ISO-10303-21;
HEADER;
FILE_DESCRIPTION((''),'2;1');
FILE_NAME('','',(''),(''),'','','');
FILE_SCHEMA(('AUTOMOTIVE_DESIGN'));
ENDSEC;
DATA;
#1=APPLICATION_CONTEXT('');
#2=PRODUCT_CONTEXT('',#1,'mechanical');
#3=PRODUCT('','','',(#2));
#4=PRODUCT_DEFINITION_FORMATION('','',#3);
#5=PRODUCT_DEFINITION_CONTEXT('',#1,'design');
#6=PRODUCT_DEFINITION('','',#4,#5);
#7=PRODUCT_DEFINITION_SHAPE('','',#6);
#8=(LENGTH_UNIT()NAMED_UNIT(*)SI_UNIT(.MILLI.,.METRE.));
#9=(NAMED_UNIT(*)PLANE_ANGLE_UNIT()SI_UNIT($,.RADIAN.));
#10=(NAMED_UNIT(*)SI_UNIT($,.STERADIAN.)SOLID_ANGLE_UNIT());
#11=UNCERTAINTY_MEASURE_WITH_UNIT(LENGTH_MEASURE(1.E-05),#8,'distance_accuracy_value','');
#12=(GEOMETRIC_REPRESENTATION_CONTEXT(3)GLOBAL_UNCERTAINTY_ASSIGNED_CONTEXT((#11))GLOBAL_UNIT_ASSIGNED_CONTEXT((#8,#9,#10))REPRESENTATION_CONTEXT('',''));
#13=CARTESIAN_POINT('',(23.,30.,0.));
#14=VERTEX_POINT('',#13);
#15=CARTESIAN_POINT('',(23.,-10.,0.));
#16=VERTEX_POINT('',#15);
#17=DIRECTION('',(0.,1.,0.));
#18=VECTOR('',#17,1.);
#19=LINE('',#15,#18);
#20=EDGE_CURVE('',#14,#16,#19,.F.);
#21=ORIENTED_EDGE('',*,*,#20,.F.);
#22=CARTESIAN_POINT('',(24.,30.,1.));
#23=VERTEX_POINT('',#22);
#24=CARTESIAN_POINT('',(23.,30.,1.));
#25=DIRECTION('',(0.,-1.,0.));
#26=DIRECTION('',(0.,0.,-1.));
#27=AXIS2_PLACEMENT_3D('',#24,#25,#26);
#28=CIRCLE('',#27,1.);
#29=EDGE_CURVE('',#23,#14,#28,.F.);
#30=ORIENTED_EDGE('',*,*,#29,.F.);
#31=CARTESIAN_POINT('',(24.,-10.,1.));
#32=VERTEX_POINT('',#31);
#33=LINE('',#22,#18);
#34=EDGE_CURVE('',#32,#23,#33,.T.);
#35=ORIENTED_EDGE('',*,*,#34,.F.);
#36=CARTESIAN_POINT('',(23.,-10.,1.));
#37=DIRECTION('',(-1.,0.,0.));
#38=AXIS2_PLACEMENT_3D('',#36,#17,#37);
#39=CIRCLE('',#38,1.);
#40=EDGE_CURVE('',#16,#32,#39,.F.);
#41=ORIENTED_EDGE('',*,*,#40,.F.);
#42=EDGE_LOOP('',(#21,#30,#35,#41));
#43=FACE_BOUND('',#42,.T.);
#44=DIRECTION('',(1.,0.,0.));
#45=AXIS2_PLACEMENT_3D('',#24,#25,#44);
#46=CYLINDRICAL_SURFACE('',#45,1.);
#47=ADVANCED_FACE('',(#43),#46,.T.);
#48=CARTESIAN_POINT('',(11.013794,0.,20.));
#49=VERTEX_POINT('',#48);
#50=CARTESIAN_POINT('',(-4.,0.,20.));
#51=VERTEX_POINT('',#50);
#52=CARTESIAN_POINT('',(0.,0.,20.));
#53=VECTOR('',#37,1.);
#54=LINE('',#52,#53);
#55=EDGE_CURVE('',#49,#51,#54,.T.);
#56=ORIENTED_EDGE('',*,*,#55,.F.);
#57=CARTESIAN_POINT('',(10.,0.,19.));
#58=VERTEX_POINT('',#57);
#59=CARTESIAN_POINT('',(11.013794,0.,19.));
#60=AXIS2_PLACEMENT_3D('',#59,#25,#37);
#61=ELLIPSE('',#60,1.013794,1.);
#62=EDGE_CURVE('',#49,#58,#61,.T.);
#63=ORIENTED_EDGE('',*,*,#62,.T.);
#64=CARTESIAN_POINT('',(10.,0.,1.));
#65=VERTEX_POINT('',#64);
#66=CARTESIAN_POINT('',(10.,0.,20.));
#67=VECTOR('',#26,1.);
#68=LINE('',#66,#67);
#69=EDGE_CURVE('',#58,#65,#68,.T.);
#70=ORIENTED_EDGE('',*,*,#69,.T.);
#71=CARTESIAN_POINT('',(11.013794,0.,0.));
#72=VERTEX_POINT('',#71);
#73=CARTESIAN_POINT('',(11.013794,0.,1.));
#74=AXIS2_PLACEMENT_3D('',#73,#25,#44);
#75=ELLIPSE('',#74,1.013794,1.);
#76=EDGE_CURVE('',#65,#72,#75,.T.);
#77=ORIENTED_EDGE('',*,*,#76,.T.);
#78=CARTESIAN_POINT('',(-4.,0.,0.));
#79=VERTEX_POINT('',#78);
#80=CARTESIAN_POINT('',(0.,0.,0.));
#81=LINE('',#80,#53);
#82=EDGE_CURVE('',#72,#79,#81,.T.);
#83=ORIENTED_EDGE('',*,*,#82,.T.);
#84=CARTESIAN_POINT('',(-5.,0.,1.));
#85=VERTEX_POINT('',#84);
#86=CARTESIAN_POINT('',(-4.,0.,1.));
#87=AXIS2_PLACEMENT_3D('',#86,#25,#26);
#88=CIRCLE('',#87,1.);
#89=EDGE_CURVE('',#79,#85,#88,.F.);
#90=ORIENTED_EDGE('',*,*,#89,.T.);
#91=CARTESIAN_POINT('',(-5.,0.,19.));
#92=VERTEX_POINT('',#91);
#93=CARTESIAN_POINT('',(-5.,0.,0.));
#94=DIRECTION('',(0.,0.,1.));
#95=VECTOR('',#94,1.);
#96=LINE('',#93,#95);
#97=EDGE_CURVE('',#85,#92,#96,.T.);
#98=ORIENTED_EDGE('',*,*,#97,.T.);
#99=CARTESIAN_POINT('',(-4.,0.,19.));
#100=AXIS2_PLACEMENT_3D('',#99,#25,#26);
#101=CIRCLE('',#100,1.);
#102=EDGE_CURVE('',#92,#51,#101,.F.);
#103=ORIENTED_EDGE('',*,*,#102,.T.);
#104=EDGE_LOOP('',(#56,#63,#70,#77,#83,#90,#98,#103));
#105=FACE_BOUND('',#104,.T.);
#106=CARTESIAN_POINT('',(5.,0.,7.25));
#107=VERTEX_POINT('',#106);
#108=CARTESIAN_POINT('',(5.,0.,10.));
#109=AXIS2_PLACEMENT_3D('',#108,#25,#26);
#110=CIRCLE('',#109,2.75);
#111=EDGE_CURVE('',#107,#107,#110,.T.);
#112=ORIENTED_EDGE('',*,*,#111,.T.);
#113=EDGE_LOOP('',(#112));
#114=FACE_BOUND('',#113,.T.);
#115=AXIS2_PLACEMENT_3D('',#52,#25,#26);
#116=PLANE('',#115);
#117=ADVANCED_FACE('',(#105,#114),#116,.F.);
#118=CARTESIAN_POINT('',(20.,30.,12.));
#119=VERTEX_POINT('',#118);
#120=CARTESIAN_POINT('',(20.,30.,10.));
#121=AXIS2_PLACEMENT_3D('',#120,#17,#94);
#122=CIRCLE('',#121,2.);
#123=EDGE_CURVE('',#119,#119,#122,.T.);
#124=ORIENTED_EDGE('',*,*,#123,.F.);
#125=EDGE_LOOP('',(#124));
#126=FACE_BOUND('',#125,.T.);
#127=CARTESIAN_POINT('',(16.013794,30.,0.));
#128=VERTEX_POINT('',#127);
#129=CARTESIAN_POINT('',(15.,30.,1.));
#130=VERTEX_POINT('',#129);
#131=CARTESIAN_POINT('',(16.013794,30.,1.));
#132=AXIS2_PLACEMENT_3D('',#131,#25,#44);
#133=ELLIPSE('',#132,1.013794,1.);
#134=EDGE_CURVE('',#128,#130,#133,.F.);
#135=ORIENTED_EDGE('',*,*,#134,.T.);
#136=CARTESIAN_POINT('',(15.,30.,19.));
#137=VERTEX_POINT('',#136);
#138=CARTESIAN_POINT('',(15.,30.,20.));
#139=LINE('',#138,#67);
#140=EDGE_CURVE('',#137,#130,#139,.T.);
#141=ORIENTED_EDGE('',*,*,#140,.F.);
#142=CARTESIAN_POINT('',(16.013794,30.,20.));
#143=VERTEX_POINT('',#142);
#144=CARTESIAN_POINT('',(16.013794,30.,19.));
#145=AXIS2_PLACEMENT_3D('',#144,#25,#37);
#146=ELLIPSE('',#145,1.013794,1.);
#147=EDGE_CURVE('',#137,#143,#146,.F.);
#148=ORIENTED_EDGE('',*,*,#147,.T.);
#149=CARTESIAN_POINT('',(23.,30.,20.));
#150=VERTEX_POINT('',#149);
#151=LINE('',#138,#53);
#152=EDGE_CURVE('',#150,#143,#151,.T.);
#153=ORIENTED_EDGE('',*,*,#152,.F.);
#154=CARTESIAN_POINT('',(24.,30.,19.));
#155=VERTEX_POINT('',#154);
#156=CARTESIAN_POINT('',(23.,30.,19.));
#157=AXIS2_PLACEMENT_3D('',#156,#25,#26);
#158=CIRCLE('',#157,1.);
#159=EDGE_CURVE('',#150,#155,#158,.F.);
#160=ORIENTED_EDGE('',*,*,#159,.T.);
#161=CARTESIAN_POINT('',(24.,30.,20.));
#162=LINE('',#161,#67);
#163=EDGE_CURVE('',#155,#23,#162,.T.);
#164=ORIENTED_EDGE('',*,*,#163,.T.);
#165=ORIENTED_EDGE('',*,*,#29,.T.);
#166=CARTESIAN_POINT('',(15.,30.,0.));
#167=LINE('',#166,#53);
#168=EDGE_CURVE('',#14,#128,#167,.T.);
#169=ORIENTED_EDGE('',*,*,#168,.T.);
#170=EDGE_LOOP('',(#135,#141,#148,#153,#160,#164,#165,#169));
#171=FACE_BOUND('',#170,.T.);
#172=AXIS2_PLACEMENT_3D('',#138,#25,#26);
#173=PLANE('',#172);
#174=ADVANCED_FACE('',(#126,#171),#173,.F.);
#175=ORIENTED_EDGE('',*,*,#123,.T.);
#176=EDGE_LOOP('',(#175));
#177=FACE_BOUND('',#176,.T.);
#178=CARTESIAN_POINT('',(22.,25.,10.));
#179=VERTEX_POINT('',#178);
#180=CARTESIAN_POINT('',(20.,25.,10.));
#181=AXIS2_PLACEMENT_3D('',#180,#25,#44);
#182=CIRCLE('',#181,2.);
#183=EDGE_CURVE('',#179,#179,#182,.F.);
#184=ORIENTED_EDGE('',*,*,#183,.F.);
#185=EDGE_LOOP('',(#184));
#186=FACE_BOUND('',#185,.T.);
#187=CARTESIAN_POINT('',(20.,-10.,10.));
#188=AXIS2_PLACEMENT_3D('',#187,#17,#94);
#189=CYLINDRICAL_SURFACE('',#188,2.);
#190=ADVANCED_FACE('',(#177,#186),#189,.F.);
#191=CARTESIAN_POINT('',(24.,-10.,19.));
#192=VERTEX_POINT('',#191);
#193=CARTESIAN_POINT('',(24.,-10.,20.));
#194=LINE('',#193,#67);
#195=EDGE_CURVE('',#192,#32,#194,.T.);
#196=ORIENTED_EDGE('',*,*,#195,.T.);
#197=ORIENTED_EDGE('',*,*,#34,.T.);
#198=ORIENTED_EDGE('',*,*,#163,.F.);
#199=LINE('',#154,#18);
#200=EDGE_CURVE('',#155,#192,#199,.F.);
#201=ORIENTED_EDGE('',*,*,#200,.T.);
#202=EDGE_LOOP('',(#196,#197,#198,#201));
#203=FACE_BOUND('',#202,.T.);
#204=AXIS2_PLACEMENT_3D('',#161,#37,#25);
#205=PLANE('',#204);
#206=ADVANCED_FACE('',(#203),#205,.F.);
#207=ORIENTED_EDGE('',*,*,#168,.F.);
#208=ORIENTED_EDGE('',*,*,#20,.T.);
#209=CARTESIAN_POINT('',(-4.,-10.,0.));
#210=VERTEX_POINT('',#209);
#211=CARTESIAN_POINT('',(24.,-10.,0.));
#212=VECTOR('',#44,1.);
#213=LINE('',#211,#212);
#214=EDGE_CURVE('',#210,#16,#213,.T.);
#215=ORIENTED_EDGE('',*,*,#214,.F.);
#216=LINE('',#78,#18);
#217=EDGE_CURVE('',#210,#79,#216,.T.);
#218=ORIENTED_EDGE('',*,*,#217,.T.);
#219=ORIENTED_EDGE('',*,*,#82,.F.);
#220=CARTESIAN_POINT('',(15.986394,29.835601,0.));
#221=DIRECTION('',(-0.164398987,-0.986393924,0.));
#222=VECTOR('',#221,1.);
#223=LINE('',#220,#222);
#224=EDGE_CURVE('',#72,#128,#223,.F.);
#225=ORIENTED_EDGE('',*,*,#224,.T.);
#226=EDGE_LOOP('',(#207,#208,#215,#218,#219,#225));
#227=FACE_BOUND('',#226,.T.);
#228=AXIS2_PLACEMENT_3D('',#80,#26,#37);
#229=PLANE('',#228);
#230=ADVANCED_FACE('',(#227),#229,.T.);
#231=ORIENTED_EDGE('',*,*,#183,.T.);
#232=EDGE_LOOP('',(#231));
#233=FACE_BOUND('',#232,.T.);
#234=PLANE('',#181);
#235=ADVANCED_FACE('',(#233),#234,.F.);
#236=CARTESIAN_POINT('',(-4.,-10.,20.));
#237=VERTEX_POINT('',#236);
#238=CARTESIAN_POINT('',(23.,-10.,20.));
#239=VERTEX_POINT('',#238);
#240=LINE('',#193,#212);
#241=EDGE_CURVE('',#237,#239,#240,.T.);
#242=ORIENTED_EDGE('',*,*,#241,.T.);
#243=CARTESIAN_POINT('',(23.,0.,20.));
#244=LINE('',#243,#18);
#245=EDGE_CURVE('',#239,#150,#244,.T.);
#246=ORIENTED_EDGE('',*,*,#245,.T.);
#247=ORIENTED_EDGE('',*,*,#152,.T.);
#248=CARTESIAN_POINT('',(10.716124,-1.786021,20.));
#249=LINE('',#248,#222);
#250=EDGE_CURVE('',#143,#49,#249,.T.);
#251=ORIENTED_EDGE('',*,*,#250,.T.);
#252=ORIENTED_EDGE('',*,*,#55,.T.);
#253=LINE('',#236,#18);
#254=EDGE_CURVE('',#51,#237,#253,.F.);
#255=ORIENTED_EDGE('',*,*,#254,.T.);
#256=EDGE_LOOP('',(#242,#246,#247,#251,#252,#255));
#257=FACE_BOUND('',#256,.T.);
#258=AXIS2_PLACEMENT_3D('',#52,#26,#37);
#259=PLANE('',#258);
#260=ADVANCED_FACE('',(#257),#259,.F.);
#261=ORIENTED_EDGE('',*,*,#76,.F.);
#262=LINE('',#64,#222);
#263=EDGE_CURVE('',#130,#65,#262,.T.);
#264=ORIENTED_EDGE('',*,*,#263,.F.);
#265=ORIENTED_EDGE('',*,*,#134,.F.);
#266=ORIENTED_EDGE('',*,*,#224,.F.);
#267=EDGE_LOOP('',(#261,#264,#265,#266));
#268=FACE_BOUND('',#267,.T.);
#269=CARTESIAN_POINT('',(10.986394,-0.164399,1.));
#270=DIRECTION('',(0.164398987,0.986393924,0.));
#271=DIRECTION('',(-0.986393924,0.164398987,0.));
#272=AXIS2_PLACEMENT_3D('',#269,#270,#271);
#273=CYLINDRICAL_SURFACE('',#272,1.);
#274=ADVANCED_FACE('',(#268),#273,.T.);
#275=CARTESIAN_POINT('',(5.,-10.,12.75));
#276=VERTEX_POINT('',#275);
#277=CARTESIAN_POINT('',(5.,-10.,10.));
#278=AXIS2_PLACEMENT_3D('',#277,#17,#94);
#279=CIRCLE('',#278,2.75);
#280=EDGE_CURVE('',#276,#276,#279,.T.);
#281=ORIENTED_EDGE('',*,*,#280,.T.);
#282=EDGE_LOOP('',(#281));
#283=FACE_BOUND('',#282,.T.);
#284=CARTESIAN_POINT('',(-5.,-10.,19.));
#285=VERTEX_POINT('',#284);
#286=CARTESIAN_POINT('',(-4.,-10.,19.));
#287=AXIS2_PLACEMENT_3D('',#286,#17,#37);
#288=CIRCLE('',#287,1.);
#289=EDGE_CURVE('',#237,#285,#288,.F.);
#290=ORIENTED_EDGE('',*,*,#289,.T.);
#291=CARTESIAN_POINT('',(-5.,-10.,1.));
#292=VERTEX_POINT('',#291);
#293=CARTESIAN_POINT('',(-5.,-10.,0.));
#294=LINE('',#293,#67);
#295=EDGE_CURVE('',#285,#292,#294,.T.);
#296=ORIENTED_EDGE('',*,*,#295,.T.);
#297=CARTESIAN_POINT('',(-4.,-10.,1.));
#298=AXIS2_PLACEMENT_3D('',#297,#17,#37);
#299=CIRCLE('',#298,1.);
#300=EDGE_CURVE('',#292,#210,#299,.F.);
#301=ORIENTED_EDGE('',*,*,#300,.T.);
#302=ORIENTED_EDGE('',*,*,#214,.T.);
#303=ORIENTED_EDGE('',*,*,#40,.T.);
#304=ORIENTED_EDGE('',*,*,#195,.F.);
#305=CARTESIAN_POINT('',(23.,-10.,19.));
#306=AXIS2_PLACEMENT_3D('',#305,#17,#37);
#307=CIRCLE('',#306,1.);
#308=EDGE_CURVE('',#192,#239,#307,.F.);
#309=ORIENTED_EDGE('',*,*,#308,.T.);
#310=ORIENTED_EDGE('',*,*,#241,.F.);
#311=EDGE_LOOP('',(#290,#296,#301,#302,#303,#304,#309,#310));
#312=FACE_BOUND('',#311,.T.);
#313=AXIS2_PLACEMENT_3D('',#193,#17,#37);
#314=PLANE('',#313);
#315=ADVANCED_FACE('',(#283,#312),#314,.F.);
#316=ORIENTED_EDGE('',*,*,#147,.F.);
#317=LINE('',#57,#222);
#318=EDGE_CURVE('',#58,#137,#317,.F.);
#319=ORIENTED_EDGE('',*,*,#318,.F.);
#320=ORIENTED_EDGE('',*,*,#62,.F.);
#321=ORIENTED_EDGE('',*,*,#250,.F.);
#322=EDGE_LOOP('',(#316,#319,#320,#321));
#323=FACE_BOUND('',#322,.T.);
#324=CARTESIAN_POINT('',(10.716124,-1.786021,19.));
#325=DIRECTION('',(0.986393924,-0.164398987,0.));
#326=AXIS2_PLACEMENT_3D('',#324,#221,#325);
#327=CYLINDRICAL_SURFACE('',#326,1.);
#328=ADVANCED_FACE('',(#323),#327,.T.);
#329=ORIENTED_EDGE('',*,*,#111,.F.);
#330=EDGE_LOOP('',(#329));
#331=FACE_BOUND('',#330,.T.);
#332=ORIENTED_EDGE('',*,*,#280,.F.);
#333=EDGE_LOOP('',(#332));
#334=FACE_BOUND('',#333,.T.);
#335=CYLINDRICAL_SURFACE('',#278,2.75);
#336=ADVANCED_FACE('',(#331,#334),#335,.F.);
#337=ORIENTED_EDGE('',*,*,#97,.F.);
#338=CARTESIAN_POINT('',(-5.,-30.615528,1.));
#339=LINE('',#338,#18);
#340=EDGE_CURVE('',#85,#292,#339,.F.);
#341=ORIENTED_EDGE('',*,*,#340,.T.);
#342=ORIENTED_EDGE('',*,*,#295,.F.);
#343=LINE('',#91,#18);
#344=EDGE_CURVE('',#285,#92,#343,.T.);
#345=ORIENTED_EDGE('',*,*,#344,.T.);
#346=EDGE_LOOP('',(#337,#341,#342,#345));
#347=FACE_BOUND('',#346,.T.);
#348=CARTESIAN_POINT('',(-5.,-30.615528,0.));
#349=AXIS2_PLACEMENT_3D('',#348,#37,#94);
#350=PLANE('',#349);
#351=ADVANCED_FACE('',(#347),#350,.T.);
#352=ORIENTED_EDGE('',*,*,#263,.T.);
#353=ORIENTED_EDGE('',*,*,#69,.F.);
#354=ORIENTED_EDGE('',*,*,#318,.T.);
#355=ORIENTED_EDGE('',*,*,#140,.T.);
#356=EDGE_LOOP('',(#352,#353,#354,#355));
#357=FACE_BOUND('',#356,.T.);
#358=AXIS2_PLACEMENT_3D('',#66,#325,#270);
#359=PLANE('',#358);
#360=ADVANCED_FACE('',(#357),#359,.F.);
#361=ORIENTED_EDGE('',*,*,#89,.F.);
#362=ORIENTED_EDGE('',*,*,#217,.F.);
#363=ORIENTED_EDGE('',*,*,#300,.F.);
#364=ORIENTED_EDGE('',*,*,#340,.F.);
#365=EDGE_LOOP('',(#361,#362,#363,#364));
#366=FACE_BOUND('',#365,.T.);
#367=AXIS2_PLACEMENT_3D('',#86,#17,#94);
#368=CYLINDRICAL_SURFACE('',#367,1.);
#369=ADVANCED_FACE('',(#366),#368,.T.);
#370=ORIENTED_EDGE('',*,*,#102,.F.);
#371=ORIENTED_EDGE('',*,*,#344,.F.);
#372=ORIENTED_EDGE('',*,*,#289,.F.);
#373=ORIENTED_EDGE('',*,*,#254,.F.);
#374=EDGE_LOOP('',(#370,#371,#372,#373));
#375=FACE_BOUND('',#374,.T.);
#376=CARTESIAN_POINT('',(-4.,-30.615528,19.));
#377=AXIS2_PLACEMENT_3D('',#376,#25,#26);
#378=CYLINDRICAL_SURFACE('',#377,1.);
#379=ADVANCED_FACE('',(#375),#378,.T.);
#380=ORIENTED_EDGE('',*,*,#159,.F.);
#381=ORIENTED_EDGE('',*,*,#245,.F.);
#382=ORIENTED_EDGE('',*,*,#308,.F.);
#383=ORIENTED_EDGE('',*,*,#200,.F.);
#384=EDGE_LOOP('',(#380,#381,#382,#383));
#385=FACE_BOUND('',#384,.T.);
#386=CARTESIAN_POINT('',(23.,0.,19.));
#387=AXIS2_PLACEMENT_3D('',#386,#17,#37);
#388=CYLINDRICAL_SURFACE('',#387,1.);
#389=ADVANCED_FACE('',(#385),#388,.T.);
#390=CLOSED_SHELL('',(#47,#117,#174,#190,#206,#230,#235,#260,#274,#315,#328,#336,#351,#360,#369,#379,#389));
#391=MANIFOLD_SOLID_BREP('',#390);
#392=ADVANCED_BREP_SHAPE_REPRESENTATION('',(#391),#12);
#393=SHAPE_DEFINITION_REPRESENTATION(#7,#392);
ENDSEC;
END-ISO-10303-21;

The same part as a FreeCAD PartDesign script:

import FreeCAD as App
import Part
import Sketcher
from FreeCAD import Vector


def edges_at(feature, points):
    """Names of the edges that pass closest to the given points."""
    edges = feature.Shape.Edges
    near = lambda p: min(range(len(edges)), key=lambda i: edges[i].distToShape(Part.Vertex(*p))[0])
    return sorted({f"Edge{near(p) + 1}" for p in points})

doc = App.newDocument("Part")
body = doc.addObject("PartDesign::Body", "Body")

# Sketch on XY plane
sketch1 = body.newObject("Sketcher::SketchObject", "Sketch")
sketch1.AttachmentSupport = (doc.getObject("XY_Plane"), [""])
sketch1.MapMode = "FlatFace"
sketch1.addGeometry([
    Part.LineSegment(Vector(10, 0, 0), Vector(0, 0, 0)),  # 0
    Part.LineSegment(Vector(0, 0, 0), Vector(0, -10, 0)),  # 1
    Part.LineSegment(Vector(0, -10, 0), Vector(24, -10, 0)),  # 2
    Part.LineSegment(Vector(24, -10, 0), Vector(24, 30, 0)),  # 3
    Part.LineSegment(Vector(24, 30, 0), Vector(15, 30, 0)),  # 4
    Part.LineSegment(Vector(15, 30, 0), Vector(10, 0, 0)),  # 5
], False)
sketch1.addConstraint([
    Sketcher.Constraint("Coincident", 0, 2, 1, 1),
    Sketcher.Constraint("Coincident", 1, 2, 2, 1),
    Sketcher.Constraint("Coincident", 2, 2, 3, 1),
    Sketcher.Constraint("Coincident", 3, 2, 4, 1),
    Sketcher.Constraint("Coincident", 4, 2, 5, 1),
    Sketcher.Constraint("Coincident", 5, 2, 0, 1),
    Sketcher.Constraint("Horizontal", 0),
    Sketcher.Constraint("Vertical", 1),
    Sketcher.Constraint("Horizontal", 2),
    Sketcher.Constraint("Vertical", 3),
    Sketcher.Constraint("Horizontal", 4),
    Sketcher.Constraint("Coincident", 0, 2, -1, 1),
    Sketcher.Constraint("Equal", 0, 1),
    Sketcher.Constraint("DistanceX", 0, 2, 0, 1, 10.0),
    Sketcher.Constraint("DistanceX", 2, 1, 2, 2, 24.0),
    Sketcher.Constraint("DistanceX", 4, 2, 4, 1, 9.0),
    Sketcher.Constraint("DistanceY", 3, 1, 3, 2, 40.0),
])
pad1 = body.newObject("PartDesign::Pad", "Pad")
pad1.Profile = sketch1
pad1.Length = 20

# Sketch on XZ plane
sketch2 = body.newObject("Sketcher::SketchObject", "Sketch001")
sketch2.AttachmentSupport = (doc.getObject("XZ_Plane"), [""])
sketch2.MapMode = "FlatFace"
sketch2.AttachmentOffset = App.Placement(Vector(0, 0, -30), App.Rotation())
sketch2.addGeometry([
    Part.Circle(Vector(20, 10, 0), Vector(0, 0, 1), 2),
    Part.Circle(Vector(5, 10, 0), Vector(0, 0, 1), 2.8),
], False)
sketch2.addConstraint([
    Sketcher.Constraint("Horizontal", 0, 3, 1, 3),
    Sketcher.Constraint("Diameter", 0, 4.0),
    Sketcher.Constraint("Diameter", 1, 5.5),
    Sketcher.Constraint("DistanceX", -1, 1, 0, 3, 20.0),
    Sketcher.Constraint("DistanceY", -1, 1, 0, 3, 10.0),
    Sketcher.Constraint("DistanceX", -1, 1, 1, 3, 5.0),
])
pocket1 = body.newObject("PartDesign::Pocket", "Pocket")
pocket1.Profile = sketch2
pocket1.Type = "ThroughAll"
pocket1.Reversed = True

# Sketch on XZ plane
sketch3 = body.newObject("Sketcher::SketchObject", "Sketch002")
sketch3.AttachmentSupport = (doc.getObject("XZ_Plane"), [""])
sketch3.MapMode = "FlatFace"
sketch3.AttachmentOffset = App.Placement(Vector(0, 0, -25), App.Rotation())
sketch3.addGeometry(Part.Circle(Vector(20, 10, 0), Vector(0, 0, 1), 2), False)
sketch3.addConstraint([
    Sketcher.Constraint("Diameter", 0, 4.0),
    Sketcher.Constraint("DistanceX", -1, 1, 0, 3, 20.0),
    Sketcher.Constraint("DistanceY", -1, 1, 0, 3, 10.0),
])
pad2 = body.newObject("PartDesign::Pad", "Pad001")
pad2.Profile = sketch3
pad2.Length = 35

# Sketch on XZ plane
sketch4 = body.newObject("Sketcher::SketchObject", "Sketch003")
sketch4.AttachmentSupport = (doc.getObject("XZ_Plane"), [""])
sketch4.MapMode = "FlatFace"
sketch4.addGeometry([
    Part.LineSegment(Vector(-5, 0, 0), Vector(-5, 20, 0)),
    Part.LineSegment(Vector(-5, 20, 0), Vector(0, 20, 0)),
    Part.LineSegment(Vector(0, 20, 0), Vector(0, 0, 0)),
    Part.LineSegment(Vector(0, 0, 0), Vector(-5, 0, 0)),
], False)
sketch4.addConstraint([
    Sketcher.Constraint("Coincident", 0, 2, 1, 1),
    Sketcher.Constraint("Coincident", 1, 2, 2, 1),
    Sketcher.Constraint("Coincident", 2, 2, 3, 1),
    Sketcher.Constraint("Coincident", 3, 2, 0, 1),
    Sketcher.Constraint("Vertical", 0),
    Sketcher.Constraint("Horizontal", 1),
    Sketcher.Constraint("Vertical", 2),
    Sketcher.Constraint("Horizontal", 3),
    Sketcher.Constraint("Coincident", 2, 2, -1, 1),
    Sketcher.Constraint("DistanceX", 1, 1, 1, 2, 5.0),
    Sketcher.Constraint("DistanceY", 0, 1, 0, 2, 20.0),
])
pad3 = body.newObject("PartDesign::Pad", "Pad002")
pad3.Profile = sketch4
pad3.Length = 10
doc.recompute()

fillet = body.newObject("PartDesign::Fillet", "Fillet")
fillet.Base = (pad3, edges_at(pad3, [
    (24, 10, 20),
    (12.5, 15, 20),
    (-5, -5, 20),
    (-5, -5, 0),
    (12.5, 15, 0),
    (24, 10, 0),
]))
fillet.Radius = 1

doc.recompute()
